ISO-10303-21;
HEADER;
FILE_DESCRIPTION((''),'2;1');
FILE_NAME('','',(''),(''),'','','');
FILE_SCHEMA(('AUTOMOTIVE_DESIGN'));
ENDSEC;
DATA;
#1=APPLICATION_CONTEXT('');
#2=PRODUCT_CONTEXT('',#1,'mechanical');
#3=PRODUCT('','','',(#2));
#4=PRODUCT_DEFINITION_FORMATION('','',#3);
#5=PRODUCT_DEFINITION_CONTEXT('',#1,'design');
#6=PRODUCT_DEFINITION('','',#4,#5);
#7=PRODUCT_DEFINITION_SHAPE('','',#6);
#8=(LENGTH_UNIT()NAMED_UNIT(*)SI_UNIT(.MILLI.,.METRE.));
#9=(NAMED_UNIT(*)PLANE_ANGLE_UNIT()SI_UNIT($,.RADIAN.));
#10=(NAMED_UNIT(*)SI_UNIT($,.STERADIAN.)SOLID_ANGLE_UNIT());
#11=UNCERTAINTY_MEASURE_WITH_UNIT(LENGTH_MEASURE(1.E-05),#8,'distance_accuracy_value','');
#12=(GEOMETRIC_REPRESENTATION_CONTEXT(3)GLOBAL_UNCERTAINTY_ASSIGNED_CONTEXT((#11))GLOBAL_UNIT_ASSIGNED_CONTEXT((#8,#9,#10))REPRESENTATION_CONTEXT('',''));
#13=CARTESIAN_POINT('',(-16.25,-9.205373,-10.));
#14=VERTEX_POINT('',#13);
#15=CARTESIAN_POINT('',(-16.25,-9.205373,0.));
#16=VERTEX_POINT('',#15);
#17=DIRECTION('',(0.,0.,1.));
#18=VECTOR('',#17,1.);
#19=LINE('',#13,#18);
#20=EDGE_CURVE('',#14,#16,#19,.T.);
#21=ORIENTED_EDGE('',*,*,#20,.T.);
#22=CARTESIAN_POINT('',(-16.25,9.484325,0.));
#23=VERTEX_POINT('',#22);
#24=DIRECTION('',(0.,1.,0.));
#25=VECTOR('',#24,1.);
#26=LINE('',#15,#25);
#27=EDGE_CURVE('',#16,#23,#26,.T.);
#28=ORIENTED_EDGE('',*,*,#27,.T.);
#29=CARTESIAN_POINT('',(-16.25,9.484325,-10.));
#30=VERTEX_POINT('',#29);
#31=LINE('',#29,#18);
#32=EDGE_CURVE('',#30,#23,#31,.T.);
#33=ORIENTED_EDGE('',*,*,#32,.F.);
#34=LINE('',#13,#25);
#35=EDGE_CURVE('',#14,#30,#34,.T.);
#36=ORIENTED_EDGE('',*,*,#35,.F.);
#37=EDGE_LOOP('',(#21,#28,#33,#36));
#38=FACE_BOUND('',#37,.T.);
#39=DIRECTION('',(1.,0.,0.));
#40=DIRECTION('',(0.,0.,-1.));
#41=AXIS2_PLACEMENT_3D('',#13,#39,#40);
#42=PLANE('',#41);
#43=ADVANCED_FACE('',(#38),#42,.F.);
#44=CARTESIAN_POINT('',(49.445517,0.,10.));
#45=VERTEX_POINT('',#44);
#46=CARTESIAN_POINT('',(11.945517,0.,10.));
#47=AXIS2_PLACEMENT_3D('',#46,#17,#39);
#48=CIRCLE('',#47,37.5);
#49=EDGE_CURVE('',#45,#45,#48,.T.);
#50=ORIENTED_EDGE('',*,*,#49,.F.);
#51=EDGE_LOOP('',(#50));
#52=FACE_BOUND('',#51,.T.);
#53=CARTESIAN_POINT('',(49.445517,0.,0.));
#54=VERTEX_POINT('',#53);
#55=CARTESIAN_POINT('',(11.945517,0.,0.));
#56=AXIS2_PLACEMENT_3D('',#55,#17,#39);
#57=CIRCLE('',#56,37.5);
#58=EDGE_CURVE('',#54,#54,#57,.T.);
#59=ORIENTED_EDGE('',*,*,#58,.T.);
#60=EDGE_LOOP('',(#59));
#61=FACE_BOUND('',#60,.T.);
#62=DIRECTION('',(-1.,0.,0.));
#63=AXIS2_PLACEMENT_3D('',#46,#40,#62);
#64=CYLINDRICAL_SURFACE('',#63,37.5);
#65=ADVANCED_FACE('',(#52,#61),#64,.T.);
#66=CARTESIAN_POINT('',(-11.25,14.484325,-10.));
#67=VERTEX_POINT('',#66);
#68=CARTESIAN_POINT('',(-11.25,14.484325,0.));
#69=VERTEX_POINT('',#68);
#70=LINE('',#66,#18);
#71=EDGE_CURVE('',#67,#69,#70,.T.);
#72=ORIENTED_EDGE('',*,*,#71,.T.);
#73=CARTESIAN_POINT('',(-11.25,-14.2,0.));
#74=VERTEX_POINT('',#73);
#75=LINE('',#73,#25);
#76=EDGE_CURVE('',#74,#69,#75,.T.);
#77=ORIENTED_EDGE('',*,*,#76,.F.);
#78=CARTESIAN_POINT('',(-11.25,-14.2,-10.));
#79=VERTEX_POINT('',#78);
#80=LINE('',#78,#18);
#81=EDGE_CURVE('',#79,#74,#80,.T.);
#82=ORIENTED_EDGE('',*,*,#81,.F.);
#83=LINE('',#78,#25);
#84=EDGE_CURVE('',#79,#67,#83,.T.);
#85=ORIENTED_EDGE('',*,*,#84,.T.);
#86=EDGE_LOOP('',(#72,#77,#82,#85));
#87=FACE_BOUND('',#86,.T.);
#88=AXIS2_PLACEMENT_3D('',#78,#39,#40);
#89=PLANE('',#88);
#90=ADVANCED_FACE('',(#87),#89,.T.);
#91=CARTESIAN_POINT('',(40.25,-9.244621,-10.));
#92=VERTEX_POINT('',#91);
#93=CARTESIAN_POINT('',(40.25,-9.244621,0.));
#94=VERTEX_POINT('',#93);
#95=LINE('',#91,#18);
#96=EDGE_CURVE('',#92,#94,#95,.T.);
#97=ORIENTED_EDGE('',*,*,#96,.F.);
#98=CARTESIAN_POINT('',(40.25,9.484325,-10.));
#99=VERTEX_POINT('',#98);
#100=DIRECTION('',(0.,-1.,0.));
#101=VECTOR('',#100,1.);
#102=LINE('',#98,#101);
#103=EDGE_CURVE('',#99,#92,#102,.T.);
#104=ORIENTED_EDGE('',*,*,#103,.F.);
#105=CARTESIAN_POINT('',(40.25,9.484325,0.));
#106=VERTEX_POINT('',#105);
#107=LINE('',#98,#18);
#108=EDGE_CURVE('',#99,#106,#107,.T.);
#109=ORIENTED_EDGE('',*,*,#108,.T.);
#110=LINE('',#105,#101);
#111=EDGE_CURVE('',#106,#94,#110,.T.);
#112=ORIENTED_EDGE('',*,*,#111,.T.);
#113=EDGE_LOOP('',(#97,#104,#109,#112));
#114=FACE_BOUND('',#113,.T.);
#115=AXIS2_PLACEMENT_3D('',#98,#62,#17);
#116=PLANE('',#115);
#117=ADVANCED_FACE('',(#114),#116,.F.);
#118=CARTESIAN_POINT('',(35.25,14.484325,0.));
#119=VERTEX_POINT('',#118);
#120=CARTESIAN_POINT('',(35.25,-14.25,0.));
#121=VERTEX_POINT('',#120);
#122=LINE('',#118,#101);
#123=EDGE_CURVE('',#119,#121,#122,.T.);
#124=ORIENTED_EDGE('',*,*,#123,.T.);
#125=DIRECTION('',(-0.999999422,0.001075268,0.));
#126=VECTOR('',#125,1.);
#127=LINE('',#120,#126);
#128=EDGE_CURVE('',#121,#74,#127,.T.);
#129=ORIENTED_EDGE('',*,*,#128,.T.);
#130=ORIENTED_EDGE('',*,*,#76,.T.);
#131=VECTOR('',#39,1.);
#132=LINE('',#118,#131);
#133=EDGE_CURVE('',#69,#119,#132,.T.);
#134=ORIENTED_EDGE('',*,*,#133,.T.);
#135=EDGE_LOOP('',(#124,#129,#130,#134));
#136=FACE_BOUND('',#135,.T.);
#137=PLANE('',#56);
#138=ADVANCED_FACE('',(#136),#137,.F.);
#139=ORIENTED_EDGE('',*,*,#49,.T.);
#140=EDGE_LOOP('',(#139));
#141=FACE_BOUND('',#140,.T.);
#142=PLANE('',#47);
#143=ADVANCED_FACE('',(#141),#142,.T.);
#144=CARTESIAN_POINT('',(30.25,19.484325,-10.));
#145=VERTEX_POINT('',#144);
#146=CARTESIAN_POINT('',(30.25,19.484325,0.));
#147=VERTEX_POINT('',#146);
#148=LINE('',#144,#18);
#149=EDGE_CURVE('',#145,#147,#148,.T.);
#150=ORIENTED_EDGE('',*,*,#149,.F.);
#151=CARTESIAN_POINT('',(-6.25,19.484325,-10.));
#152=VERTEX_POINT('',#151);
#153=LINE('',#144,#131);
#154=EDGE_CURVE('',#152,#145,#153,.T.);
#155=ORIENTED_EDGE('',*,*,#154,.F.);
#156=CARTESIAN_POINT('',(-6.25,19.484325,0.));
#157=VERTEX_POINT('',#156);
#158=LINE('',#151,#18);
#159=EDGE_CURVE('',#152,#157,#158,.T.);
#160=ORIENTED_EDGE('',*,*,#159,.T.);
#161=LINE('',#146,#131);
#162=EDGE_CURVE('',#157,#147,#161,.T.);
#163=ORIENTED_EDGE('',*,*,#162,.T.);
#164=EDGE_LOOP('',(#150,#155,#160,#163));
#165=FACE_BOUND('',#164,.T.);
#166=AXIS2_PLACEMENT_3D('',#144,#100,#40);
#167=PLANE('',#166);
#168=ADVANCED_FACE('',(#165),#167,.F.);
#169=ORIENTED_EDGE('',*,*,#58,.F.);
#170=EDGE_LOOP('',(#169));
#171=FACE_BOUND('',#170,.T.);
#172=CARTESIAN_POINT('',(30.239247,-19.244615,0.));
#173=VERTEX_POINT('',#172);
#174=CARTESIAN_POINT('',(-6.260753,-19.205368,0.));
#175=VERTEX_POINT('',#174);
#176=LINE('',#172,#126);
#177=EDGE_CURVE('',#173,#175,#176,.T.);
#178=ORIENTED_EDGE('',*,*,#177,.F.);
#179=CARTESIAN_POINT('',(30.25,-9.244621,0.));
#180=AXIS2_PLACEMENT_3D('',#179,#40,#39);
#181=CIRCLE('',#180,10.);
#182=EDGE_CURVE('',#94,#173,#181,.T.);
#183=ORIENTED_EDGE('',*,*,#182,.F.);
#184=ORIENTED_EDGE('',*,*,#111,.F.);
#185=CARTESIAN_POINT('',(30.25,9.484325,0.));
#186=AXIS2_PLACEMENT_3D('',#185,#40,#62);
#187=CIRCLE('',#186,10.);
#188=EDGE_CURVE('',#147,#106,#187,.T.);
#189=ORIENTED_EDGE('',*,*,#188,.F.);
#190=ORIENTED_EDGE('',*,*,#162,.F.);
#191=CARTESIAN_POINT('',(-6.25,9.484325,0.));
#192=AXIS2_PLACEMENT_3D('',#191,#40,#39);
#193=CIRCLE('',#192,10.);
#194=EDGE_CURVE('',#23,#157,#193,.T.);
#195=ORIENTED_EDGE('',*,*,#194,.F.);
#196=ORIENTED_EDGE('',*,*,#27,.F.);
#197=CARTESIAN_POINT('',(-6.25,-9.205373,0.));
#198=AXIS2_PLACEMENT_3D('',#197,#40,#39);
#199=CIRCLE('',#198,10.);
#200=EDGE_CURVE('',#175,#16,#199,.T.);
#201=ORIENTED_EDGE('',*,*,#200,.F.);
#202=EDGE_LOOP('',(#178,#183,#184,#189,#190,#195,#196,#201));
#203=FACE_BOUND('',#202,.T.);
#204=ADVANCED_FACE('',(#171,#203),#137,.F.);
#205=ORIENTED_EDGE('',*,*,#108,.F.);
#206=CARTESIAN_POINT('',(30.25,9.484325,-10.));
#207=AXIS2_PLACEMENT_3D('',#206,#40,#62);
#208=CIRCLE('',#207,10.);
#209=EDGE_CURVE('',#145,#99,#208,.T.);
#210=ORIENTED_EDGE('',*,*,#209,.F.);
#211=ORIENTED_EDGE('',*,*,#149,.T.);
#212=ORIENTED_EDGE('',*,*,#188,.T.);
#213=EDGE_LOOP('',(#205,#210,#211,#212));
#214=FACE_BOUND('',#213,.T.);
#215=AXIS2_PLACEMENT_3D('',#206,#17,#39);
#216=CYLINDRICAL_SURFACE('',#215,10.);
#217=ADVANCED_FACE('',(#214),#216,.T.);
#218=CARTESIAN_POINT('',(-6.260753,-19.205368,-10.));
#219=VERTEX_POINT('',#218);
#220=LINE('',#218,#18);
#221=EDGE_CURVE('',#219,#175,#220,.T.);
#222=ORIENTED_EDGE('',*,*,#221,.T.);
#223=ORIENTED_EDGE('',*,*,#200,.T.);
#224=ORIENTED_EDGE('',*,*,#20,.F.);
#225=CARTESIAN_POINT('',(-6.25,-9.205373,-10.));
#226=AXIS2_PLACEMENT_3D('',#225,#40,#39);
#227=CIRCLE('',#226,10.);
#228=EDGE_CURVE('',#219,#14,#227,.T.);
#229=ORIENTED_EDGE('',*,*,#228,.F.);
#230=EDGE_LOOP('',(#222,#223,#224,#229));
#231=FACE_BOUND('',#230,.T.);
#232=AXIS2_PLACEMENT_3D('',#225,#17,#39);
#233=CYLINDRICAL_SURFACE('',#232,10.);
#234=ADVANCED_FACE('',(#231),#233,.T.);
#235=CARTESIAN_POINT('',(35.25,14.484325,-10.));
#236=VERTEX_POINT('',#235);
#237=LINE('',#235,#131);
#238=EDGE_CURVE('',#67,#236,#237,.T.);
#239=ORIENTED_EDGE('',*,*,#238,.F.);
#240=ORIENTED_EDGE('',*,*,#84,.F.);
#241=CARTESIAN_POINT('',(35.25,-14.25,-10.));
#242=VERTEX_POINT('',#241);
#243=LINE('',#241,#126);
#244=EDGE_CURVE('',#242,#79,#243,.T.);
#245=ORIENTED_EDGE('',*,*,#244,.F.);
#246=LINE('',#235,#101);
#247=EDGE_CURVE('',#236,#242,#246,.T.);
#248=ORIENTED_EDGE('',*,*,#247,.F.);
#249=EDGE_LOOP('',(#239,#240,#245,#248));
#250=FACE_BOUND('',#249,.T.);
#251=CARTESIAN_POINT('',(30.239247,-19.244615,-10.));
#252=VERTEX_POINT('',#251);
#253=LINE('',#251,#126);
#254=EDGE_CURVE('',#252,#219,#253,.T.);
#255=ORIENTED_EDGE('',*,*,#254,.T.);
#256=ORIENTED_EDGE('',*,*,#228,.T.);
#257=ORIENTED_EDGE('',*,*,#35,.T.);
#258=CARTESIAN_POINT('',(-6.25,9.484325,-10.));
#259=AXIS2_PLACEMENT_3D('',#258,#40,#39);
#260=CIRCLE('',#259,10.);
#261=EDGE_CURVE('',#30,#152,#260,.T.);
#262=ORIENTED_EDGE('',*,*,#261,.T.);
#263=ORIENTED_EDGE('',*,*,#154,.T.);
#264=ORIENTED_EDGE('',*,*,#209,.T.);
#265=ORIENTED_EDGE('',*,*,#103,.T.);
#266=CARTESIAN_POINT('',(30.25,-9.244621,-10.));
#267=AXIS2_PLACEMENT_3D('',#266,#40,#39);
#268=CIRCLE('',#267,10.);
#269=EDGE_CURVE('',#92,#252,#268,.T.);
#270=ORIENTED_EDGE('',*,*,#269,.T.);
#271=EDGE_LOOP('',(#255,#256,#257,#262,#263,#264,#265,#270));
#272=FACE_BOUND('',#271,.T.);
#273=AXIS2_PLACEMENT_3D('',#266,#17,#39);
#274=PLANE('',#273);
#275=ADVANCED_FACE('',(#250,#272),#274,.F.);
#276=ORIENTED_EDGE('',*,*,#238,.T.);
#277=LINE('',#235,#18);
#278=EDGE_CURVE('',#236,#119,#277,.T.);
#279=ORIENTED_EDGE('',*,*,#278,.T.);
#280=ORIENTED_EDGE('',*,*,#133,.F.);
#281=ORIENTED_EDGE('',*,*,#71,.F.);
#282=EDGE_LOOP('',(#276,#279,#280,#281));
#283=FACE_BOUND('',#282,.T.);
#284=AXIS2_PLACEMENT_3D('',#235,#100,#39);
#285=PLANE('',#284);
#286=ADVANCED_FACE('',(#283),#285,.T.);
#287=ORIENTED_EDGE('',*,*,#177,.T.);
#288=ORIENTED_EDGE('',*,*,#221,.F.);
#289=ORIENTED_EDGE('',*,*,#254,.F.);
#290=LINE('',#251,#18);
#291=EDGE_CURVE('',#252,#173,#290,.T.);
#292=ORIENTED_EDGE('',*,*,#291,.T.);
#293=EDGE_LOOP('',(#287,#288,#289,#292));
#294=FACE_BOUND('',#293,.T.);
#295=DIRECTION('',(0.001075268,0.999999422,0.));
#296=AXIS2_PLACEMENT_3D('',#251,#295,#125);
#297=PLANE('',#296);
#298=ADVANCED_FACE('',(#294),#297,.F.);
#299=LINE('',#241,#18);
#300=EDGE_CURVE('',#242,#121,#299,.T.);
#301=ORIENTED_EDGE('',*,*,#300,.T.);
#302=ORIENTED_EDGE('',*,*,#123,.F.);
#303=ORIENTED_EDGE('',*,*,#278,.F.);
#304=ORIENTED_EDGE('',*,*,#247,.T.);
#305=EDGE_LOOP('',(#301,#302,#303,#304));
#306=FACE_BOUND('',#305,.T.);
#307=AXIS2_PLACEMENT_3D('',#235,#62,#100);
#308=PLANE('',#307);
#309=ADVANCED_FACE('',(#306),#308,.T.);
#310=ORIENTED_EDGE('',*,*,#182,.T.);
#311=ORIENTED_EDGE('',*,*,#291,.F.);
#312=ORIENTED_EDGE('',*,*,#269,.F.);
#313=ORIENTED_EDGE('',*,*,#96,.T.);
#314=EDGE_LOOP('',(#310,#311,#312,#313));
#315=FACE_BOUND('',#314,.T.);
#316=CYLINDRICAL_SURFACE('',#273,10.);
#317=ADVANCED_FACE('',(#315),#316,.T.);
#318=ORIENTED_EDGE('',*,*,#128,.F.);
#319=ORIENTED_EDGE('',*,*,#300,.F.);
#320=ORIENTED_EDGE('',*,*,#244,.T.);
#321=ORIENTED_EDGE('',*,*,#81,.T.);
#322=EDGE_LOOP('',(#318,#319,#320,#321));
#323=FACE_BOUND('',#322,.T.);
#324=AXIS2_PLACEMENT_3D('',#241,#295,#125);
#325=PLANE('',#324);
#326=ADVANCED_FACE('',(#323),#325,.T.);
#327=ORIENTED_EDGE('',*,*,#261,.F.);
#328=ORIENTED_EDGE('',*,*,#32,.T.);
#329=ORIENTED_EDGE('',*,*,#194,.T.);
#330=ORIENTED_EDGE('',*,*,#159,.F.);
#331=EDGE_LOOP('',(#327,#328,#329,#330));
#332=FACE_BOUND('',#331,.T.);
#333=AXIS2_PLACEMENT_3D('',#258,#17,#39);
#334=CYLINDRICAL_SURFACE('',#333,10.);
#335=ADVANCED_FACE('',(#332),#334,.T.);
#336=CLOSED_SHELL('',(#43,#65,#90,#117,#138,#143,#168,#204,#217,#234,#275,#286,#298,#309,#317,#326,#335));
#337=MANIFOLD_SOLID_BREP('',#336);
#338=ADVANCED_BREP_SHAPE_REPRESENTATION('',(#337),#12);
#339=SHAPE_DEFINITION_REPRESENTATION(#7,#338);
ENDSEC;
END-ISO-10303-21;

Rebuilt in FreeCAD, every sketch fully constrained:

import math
import FreeCAD as App
import Part
import Sketcher
from FreeCAD import Vector
Q = App.Units.Quantity

doc = App.newDocument("Part")
body = doc.addObject("PartDesign::Body", "Body")

# Sketch on XY plane
sketch1 = doc.addObject("Sketcher::SketchObject", "Sketch")
body.addObject(sketch1)
sketch1.AttachmentSupport = (doc.XY_Plane, [""])
sketch1.MapMode = "FlatFace"
sketch1.addGeometry(Part.Circle(Vector(12, 0, 0), Vector(0, 0, 1), 38), False)
sketch1.addConstraint([
    Sketcher.Constraint("PointOnObject", 0, 3, -1),
    Sketcher.Constraint("Diameter", 0, Q("75 mm")),
    Sketcher.Constraint("DistanceX", -1, 1, 0, 3, Q("11.945517 mm")),
])
pad1 = doc.addObject("PartDesign::Pad", "Pad")
body.addObject(pad1)
pad1.Profile = sketch1
pad1.Length = 10

# Sketch on XY plane
sketch2 = doc.addObject("Sketcher::SketchObject", "Sketch001")
body.addObject(sketch2)
sketch2.AttachmentSupport = (doc.XY_Plane, [""])
sketch2.MapMode = "FlatFace"
sketch2.addGeometry([
    Part.LineSegment(Vector(-6, 19, 0), Vector(30, 19, 0)),  # 0
    Part.ArcOfCircle(Part.Circle(Vector(30, 9, 0), Vector(0, 0, 1), 10), math.radians(0), math.radians(90)),  # 1
    Part.LineSegment(Vector(40, 9, 0), Vector(40, -9, 0)),  # 2
    Part.ArcOfCircle(Part.Circle(Vector(30, -9, 0), Vector(0, 0, 1), 10), math.radians(-90), math.radians(0)),  # 3
    Part.LineSegment(Vector(30, -19, 0), Vector(-6, -19, 0)),  # 4
    Part.ArcOfCircle(Part.Circle(Vector(-6, -9, 0), Vector(0, 0, 1), 10), math.radians(-180), math.radians(-90)),  # 5
    Part.LineSegment(Vector(-16, -9, 0), Vector(-16, 9, 0)),  # 6
    Part.ArcOfCircle(Part.Circle(Vector(-6, 9, 0), Vector(0, 0, 1), 10), math.radians(90), math.radians(180)),  # 7
    Part.LineSegment(Vector(35, -14, 0), Vector(35, 14, 0)),  # 8
    Part.LineSegment(Vector(35, 14, 0), Vector(-11, 14, 0)),  # 9
    Part.LineSegment(Vector(-11, 14, 0), Vector(-11, -14, 0)),  # 10
    Part.LineSegment(Vector(-11, -14, 0), Vector(35, -14, 0)),  # 11
], False)
sketch2.addConstraint([
    Sketcher.Constraint("Tangent", 0, 2, 1, 2),
    Sketcher.Constraint("Tangent", 1, 1, 2, 1),
    Sketcher.Constraint("Tangent", 2, 2, 3, 2),
    Sketcher.Constraint("Tangent", 3, 1, 4, 1),
    Sketcher.Constraint("Tangent", 4, 2, 5, 2),
    Sketcher.Constraint("Tangent", 5, 1, 6, 1),
    Sketcher.Constraint("Tangent", 6, 2, 7, 2),
    Sketcher.Constraint("Tangent", 7, 1, 0, 1),
    Sketcher.Constraint("Coincident", 8, 2, 9, 1),
    Sketcher.Constraint("Coincident", 9, 2, 10, 1),
    Sketcher.Constraint("Coincident", 10, 2, 11, 1),
    Sketcher.Constraint("Coincident", 11, 2, 8, 1),
    Sketcher.Constraint("Horizontal", 0),
    Sketcher.Constraint("Vertical", 2),
    Sketcher.Constraint("Vertical", 6),
    Sketcher.Constraint("Vertical", 8),
    Sketcher.Constraint("Horizontal", 9),
    Sketcher.Constraint("Vertical", 10),
    Sketcher.Constraint("Equal", 1, 3),
    Sketcher.Constraint("Equal", 3, 5),
    Sketcher.Constraint("Equal", 5, 7),
    Sketcher.Constraint("Parallel", 4, 11),
    Sketcher.Constraint("Radius", 1, Q("10 mm")),
    Sketcher.Constraint("DistanceX", 0, 1, 0, 2, Q("36.5 mm")),
    Sketcher.Constraint("DistanceX", 9, 2, 9, 1, Q("46.5 mm")),
    Sketcher.Constraint("DistanceX", 1, 3, 8, 2, Q("5 mm")),
    Sketcher.Constraint("DistanceY", 1, 3, 8, 2, Q("5 mm")),
    Sketcher.Constraint("DistanceY", 10, 2, -1, 1, Q("14.2 mm")),
    Sketcher.Constraint("DistanceX", -1, 1, 1, 3, Q("30.25 mm")),
    Sketcher.Constraint("DistanceY", 11, 2, -1, 1, Q("14.25 mm")),
    Sketcher.Constraint("DistanceY", 6, 1, 6, 2, Q("18.689698 mm")),
    Sketcher.Constraint("DistanceY", 8, 1, 8, 2, Q("28.734325 mm")),
])
pad2 = doc.addObject("PartDesign::Pad", "Pad001")
body.addObject(pad2)
pad2.Profile = sketch2
pad2.Length = 10
pad2.Reversed = True

doc.recompute()
